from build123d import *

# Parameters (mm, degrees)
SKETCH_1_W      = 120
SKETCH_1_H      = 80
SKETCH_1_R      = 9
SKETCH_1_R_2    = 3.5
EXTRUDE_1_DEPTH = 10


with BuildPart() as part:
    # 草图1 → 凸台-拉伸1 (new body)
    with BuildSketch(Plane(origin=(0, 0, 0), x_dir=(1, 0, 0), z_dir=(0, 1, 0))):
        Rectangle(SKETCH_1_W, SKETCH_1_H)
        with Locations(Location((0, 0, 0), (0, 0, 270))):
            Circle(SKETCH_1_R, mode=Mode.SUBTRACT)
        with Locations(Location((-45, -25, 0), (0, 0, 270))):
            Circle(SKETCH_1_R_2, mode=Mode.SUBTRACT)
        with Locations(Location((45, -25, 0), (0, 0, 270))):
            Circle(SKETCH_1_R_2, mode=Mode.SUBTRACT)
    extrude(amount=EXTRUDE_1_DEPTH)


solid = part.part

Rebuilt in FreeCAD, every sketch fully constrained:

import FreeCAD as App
import Part
import Sketcher
from FreeCAD import Vector


def add_polygon(sketch, points):
    """Adds a closed chain of lines whose ends are joined by coincident constraints."""
    first, n = sketch.GeometryCount, len(points)
    for a, b in zip(points, points[1:] + points[:1]):
        sketch.addGeometry(Part.LineSegment(App.Vector(*a, 0), App.Vector(*b, 0)), False)
    for i in range(n):
        sketch.addConstraint(Sketcher.Constraint("Coincident", first + i, 2, first + (i + 1) % n, 1))

doc = App.newDocument("Part")
params = doc.addObject("Spreadsheet::Sheet", "Params")
for row, (alias, value) in enumerate([
    ("sketch1_diameter", "7 mm"),
    ("sketch1_diameter2", "18 mm"),
    ("sketch1_width", "120 mm"),
    ("sketch1_height", "80 mm"),
    ("pad1_length", "10 mm"),
], start=1):
    params.set(f"A{row}", alias)
    params.set(f"B{row}", "=" + value)
    params.setAlias(f"B{row}", alias)

body = doc.addObject("PartDesign::Body", "Body")

# Sketch on XZ plane
sketch1 = doc.addObject("Sketcher::SketchObject", "Sketch")
body.addObject(sketch1)
sketch1.AttachmentSupport = (doc.XZ_Plane, [""])
sketch1.MapMode = "FlatFace"
add_polygon(sketch1, [(-60, -40), (-60, 40), (60, 40), (60, -40)])  # lines 0-3
sketch1.addGeometry(Part.Circle(Vector(-45, 25, 0), Vector(0, 0, 1), 3.5), False)  # 4
sketch1.addGeometry(Part.Circle(Vector(45, 25, 0), Vector(0, 0, 1), 3.5), False)  # 5
sketch1.addGeometry(Part.Circle(Vector(0, 0, 0), Vector(0, 0, 1), 9), False)  # 6
sketch1.addConstraint(Sketcher.Constraint("Vertical", 0))
sketch1.addConstraint(Sketcher.Constraint("Horizontal", 1))
sketch1.addConstraint(Sketcher.Constraint("Vertical", 2))
sketch1.addConstraint(Sketcher.Constraint("Horizontal", 3))
sketch1.addConstraint(Sketcher.Constraint("Coincident", 6, 3, -1, 1))
sketch1.addConstraint(Sketcher.Constraint("Equal", 4, 5))
sketch1.addConstraint(Sketcher.Constraint("Symmetric", 0, 2, 2, 2, -1, 1))
sketch1.addConstraint(Sketcher.Constraint("Symmetric", 4, 3, 5, 3, -2))
sketch1.addConstraint(Sketcher.Constraint("Diameter", 4, 7.0))
sketch1.addConstraint(Sketcher.Constraint("Diameter", 6, 18.0))
sketch1.addConstraint(Sketcher.Constraint("DistanceX", 1, 1, 1, 2, 120.0))
sketch1.addConstraint(Sketcher.Constraint("DistanceY", 0, 1, 0, 2, 80.0))
sketch1.addConstraint(Sketcher.Constraint("DistanceX", 4, 3, -1, 1, 45.0))
sketch1.addConstraint(Sketcher.Constraint("DistanceY", -1, 1, 4, 3, 25.0))
sketch1.setExpression("Constraints[12]", "Params.sketch1_diameter")
sketch1.setExpression("Constraints[13]", "Params.sketch1_diameter2")
sketch1.setExpression("Constraints[14]", "Params.sketch1_width")
sketch1.setExpression("Constraints[15]", "Params.sketch1_height")
pad1 = doc.addObject("PartDesign::Pad", "Pad")
body.addObject(pad1)
pad1.Profile = sketch1
pad1.setExpression("Length", "Params.pad1_length")
pad1.Reversed = True

doc.recompute()
